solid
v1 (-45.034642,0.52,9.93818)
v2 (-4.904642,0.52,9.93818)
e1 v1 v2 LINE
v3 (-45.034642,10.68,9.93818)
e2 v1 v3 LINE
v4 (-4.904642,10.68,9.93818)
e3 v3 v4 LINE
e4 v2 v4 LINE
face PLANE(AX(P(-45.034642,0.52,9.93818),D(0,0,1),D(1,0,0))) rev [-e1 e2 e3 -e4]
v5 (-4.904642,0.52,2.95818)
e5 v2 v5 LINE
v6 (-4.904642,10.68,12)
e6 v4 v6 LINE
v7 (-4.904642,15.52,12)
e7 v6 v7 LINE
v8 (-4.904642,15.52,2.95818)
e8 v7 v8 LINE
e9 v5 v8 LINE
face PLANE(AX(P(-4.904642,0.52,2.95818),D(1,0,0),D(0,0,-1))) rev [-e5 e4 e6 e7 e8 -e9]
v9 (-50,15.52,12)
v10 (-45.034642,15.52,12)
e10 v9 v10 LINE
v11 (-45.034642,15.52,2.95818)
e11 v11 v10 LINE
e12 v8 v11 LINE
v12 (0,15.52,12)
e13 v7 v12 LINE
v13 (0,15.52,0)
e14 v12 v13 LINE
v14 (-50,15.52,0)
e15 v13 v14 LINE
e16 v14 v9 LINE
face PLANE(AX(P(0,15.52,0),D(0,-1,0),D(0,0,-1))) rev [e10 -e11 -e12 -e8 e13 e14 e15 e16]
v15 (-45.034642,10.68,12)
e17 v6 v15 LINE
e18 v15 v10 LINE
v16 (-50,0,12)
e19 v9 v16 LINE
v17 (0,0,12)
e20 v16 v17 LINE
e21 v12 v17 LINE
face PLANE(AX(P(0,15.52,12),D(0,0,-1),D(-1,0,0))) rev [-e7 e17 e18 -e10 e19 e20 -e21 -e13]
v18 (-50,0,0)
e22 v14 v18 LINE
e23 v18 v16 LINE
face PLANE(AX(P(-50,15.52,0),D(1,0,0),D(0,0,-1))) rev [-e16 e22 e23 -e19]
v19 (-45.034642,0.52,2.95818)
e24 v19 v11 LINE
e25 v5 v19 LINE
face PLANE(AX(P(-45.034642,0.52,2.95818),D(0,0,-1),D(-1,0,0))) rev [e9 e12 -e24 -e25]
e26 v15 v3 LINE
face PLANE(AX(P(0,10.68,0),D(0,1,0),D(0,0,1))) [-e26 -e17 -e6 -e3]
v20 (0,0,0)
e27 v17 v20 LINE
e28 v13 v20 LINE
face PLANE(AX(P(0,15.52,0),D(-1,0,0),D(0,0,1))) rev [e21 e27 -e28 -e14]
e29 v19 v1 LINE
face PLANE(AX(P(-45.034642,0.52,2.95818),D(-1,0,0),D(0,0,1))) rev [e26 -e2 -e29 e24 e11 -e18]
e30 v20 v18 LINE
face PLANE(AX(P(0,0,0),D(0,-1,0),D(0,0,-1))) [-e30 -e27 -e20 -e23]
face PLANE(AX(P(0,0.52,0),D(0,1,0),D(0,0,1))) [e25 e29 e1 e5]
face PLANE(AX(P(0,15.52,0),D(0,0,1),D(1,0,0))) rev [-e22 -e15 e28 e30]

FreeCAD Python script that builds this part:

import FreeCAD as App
import Part
import Sketcher
from FreeCAD import Vector
Q = App.Units.Quantity

doc = App.newDocument("Part")
params = doc.addObject("Spreadsheet::Sheet", "Params")
for row, (alias, value) in enumerate([
    ("sketch1_width", "50 mm"),
    ("sketch1_height", "12 mm"),
    ("pad1_length", "15.52 mm"),
    ("sketch2_width", "40.13 mm"),
    ("sketch2_height", "6.98 mm"),
    ("pocket1_length", "15 mm"),
    ("sketch3_width", "40.13 mm"),
    ("pocket2_length", "4.84 mm"),
], start=1):
    params.set(f"A{row}", alias)
    params.set(f"B{row}", "=" + value)
    params.setAlias(f"B{row}", alias)

body = doc.addObject("PartDesign::Body", "Body")

sketch1 = body.newObject("Sketcher::SketchObject", "Sketch")
sketch1.AttachmentSupport = (doc.getObject("XZ_Plane"), [""])
sketch1.MapMode = "FlatFace"
sketch1.addGeometry([
    Part.LineSegment(Vector(-50, 0, 0), Vector(-50, 12, 0)),
    Part.LineSegment(Vector(-50, 12, 0), Vector(0, 12, 0)),
    Part.LineSegment(Vector(0, 12, 0), Vector(0, 0, 0)),
    Part.LineSegment(Vector(0, 0, 0), Vector(-50, 0, 0)),
], False)
sketch1.addConstraint([
    Sketcher.Constraint("Coincident", 0, 2, 1, 1),
    Sketcher.Constraint("Coincident", 1, 2, 2, 1),
    Sketcher.Constraint("Coincident", 2, 2, 3, 1),
    Sketcher.Constraint("Coincident", 3, 2, 0, 1),
    Sketcher.Constraint("Vertical", 0),
    Sketcher.Constraint("Horizontal", 1),
    Sketcher.Constraint("Vertical", 2),
    Sketcher.Constraint("Horizontal", 3),
    Sketcher.Constraint("Coincident", 2, 2, -1, 1),
    Sketcher.Constraint("DistanceX", 1, 1, 1, 2, Q("50 mm")),
    Sketcher.Constraint("DistanceY", 0, 1, 0, 2, Q("12 mm")),
])
sketch1.setExpression("Constraints[9]", "Params.sketch1_width")
sketch1.setExpression("Constraints[10]", "Params.sketch1_height")
pad1 = body.newObject("PartDesign::Pad", "Pad")
pad1.Profile = sketch1
pad1.setExpression("Length", "Params.pad1_length")
pad1.Reversed = True

sketch2 = body.newObject("Sketcher::SketchObject", "Sketch001")
sketch2.AttachmentSupport = (doc.getObject("XZ_Plane"), [""])
sketch2.MapMode = "FlatFace"
sketch2.AttachmentOffset = App.Placement(Vector(0, 0, -15.52), App.Rotation())
sketch2.addGeometry([
    Part.LineSegment(Vector(-45.034642, 2.95818, 0), Vector(-45.034642, 9.93818, 0)),
    Part.LineSegment(Vector(-45.034642, 9.93818, 0), Vector(-4.904642, 9.93818, 0)),
    Part.LineSegment(Vector(-4.904642, 9.93818, 0), Vector(-4.904642, 2.95818, 0)),
    Part.LineSegment(Vector(-4.904642, 2.95818, 0), Vector(-45.034642, 2.95818, 0)),
], False)
sketch2.addConstraint([
    Sketcher.Constraint("Coincident", 0, 2, 1, 1),
    Sketcher.Constraint("Coincident", 1, 2, 2, 1),
    Sketcher.Constraint("Coincident", 2, 2, 3, 1),
    Sketcher.Constraint("Coincident", 3, 2, 0, 1),
    Sketcher.Constraint("Vertical", 0),
    Sketcher.Constraint("Horizontal", 1),
    Sketcher.Constraint("Vertical", 2),
    Sketcher.Constraint("Horizontal", 3),
    Sketcher.Constraint("DistanceX", 1, 1, 1, 2, Q("40.13 mm")),
    Sketcher.Constraint("DistanceY", 0, 1, 0, 2, Q("6.98 mm")),
    Sketcher.Constraint("DistanceX", 0, 2, -1, 1, Q("45.034642 mm")),
    Sketcher.Constraint("DistanceY", -1, 1, 0, 2, Q("9.93818 mm")),
])
sketch2.setExpression("Constraints[8]", "Params.sketch2_width")
sketch2.setExpression("Constraints[9]", "Params.sketch2_height")
pocket1 = body.newObject("PartDesign::Pocket", "Pocket")
pocket1.Profile = sketch2
pocket1.setExpression("Length", "Params.pocket1_length")
pocket1.Reversed = True

sketch3 = body.newObject("Sketcher::SketchObject", "Sketch002")
sketch3.AttachmentSupport = (doc.getObject("XZ_Plane"), [""])
sketch3.MapMode = "FlatFace"
sketch3.AttachmentOffset = App.Placement(Vector(0, 0, -15.52), App.Rotation())
sketch3.addGeometry([
    Part.LineSegment(Vector(-45.034642, 9.93818, 0), Vector(-45.034642, 12, 0)),
    Part.LineSegment(Vector(-45.034642, 12, 0), Vector(-4.904642, 12, 0)),
    Part.LineSegment(Vector(-4.904642, 12, 0), Vector(-4.904642, 9.93818, 0)),
    Part.LineSegment(Vector(-4.904642, 9.93818, 0), Vector(-45.034642, 9.93818, 0)),
], False)
sketch3.addConstraint([
    Sketcher.Constraint("Coincident", 0, 2, 1, 1),
    Sketcher.Constraint("Coincident", 1, 2, 2, 1),
    Sketcher.Constraint("Coincident", 2, 2, 3, 1),
    Sketcher.Constraint("Coincident", 3, 2, 0, 1),
    Sketcher.Constraint("Vertical", 0),
    Sketcher.Constraint("Horizontal", 1),
    Sketcher.Constraint("Vertical", 2),
    Sketcher.Constraint("Horizontal", 3),
    Sketcher.Constraint("DistanceY", -1, 1, 0, 2, Q("12 mm")),
    Sketcher.Constraint("DistanceX", 1, 1, 1, 2, Q("40.13 mm")),
    Sketcher.Constraint("DistanceY", 0, 1, 0, 2, Q("2.06182 mm")),
    Sketcher.Constraint("DistanceX", 0, 2, -1, 1, Q("45.034642 mm")),
])
sketch3.setExpression("Constraints[9]", "Params.sketch3_width")
pocket2 = body.newObject("PartDesign::Pocket", "Pocket001")
pocket2.Profile = sketch3
pocket2.setExpression("Length", "Params.pocket2_length")
pocket2.Reversed = True

doc.recompute()
